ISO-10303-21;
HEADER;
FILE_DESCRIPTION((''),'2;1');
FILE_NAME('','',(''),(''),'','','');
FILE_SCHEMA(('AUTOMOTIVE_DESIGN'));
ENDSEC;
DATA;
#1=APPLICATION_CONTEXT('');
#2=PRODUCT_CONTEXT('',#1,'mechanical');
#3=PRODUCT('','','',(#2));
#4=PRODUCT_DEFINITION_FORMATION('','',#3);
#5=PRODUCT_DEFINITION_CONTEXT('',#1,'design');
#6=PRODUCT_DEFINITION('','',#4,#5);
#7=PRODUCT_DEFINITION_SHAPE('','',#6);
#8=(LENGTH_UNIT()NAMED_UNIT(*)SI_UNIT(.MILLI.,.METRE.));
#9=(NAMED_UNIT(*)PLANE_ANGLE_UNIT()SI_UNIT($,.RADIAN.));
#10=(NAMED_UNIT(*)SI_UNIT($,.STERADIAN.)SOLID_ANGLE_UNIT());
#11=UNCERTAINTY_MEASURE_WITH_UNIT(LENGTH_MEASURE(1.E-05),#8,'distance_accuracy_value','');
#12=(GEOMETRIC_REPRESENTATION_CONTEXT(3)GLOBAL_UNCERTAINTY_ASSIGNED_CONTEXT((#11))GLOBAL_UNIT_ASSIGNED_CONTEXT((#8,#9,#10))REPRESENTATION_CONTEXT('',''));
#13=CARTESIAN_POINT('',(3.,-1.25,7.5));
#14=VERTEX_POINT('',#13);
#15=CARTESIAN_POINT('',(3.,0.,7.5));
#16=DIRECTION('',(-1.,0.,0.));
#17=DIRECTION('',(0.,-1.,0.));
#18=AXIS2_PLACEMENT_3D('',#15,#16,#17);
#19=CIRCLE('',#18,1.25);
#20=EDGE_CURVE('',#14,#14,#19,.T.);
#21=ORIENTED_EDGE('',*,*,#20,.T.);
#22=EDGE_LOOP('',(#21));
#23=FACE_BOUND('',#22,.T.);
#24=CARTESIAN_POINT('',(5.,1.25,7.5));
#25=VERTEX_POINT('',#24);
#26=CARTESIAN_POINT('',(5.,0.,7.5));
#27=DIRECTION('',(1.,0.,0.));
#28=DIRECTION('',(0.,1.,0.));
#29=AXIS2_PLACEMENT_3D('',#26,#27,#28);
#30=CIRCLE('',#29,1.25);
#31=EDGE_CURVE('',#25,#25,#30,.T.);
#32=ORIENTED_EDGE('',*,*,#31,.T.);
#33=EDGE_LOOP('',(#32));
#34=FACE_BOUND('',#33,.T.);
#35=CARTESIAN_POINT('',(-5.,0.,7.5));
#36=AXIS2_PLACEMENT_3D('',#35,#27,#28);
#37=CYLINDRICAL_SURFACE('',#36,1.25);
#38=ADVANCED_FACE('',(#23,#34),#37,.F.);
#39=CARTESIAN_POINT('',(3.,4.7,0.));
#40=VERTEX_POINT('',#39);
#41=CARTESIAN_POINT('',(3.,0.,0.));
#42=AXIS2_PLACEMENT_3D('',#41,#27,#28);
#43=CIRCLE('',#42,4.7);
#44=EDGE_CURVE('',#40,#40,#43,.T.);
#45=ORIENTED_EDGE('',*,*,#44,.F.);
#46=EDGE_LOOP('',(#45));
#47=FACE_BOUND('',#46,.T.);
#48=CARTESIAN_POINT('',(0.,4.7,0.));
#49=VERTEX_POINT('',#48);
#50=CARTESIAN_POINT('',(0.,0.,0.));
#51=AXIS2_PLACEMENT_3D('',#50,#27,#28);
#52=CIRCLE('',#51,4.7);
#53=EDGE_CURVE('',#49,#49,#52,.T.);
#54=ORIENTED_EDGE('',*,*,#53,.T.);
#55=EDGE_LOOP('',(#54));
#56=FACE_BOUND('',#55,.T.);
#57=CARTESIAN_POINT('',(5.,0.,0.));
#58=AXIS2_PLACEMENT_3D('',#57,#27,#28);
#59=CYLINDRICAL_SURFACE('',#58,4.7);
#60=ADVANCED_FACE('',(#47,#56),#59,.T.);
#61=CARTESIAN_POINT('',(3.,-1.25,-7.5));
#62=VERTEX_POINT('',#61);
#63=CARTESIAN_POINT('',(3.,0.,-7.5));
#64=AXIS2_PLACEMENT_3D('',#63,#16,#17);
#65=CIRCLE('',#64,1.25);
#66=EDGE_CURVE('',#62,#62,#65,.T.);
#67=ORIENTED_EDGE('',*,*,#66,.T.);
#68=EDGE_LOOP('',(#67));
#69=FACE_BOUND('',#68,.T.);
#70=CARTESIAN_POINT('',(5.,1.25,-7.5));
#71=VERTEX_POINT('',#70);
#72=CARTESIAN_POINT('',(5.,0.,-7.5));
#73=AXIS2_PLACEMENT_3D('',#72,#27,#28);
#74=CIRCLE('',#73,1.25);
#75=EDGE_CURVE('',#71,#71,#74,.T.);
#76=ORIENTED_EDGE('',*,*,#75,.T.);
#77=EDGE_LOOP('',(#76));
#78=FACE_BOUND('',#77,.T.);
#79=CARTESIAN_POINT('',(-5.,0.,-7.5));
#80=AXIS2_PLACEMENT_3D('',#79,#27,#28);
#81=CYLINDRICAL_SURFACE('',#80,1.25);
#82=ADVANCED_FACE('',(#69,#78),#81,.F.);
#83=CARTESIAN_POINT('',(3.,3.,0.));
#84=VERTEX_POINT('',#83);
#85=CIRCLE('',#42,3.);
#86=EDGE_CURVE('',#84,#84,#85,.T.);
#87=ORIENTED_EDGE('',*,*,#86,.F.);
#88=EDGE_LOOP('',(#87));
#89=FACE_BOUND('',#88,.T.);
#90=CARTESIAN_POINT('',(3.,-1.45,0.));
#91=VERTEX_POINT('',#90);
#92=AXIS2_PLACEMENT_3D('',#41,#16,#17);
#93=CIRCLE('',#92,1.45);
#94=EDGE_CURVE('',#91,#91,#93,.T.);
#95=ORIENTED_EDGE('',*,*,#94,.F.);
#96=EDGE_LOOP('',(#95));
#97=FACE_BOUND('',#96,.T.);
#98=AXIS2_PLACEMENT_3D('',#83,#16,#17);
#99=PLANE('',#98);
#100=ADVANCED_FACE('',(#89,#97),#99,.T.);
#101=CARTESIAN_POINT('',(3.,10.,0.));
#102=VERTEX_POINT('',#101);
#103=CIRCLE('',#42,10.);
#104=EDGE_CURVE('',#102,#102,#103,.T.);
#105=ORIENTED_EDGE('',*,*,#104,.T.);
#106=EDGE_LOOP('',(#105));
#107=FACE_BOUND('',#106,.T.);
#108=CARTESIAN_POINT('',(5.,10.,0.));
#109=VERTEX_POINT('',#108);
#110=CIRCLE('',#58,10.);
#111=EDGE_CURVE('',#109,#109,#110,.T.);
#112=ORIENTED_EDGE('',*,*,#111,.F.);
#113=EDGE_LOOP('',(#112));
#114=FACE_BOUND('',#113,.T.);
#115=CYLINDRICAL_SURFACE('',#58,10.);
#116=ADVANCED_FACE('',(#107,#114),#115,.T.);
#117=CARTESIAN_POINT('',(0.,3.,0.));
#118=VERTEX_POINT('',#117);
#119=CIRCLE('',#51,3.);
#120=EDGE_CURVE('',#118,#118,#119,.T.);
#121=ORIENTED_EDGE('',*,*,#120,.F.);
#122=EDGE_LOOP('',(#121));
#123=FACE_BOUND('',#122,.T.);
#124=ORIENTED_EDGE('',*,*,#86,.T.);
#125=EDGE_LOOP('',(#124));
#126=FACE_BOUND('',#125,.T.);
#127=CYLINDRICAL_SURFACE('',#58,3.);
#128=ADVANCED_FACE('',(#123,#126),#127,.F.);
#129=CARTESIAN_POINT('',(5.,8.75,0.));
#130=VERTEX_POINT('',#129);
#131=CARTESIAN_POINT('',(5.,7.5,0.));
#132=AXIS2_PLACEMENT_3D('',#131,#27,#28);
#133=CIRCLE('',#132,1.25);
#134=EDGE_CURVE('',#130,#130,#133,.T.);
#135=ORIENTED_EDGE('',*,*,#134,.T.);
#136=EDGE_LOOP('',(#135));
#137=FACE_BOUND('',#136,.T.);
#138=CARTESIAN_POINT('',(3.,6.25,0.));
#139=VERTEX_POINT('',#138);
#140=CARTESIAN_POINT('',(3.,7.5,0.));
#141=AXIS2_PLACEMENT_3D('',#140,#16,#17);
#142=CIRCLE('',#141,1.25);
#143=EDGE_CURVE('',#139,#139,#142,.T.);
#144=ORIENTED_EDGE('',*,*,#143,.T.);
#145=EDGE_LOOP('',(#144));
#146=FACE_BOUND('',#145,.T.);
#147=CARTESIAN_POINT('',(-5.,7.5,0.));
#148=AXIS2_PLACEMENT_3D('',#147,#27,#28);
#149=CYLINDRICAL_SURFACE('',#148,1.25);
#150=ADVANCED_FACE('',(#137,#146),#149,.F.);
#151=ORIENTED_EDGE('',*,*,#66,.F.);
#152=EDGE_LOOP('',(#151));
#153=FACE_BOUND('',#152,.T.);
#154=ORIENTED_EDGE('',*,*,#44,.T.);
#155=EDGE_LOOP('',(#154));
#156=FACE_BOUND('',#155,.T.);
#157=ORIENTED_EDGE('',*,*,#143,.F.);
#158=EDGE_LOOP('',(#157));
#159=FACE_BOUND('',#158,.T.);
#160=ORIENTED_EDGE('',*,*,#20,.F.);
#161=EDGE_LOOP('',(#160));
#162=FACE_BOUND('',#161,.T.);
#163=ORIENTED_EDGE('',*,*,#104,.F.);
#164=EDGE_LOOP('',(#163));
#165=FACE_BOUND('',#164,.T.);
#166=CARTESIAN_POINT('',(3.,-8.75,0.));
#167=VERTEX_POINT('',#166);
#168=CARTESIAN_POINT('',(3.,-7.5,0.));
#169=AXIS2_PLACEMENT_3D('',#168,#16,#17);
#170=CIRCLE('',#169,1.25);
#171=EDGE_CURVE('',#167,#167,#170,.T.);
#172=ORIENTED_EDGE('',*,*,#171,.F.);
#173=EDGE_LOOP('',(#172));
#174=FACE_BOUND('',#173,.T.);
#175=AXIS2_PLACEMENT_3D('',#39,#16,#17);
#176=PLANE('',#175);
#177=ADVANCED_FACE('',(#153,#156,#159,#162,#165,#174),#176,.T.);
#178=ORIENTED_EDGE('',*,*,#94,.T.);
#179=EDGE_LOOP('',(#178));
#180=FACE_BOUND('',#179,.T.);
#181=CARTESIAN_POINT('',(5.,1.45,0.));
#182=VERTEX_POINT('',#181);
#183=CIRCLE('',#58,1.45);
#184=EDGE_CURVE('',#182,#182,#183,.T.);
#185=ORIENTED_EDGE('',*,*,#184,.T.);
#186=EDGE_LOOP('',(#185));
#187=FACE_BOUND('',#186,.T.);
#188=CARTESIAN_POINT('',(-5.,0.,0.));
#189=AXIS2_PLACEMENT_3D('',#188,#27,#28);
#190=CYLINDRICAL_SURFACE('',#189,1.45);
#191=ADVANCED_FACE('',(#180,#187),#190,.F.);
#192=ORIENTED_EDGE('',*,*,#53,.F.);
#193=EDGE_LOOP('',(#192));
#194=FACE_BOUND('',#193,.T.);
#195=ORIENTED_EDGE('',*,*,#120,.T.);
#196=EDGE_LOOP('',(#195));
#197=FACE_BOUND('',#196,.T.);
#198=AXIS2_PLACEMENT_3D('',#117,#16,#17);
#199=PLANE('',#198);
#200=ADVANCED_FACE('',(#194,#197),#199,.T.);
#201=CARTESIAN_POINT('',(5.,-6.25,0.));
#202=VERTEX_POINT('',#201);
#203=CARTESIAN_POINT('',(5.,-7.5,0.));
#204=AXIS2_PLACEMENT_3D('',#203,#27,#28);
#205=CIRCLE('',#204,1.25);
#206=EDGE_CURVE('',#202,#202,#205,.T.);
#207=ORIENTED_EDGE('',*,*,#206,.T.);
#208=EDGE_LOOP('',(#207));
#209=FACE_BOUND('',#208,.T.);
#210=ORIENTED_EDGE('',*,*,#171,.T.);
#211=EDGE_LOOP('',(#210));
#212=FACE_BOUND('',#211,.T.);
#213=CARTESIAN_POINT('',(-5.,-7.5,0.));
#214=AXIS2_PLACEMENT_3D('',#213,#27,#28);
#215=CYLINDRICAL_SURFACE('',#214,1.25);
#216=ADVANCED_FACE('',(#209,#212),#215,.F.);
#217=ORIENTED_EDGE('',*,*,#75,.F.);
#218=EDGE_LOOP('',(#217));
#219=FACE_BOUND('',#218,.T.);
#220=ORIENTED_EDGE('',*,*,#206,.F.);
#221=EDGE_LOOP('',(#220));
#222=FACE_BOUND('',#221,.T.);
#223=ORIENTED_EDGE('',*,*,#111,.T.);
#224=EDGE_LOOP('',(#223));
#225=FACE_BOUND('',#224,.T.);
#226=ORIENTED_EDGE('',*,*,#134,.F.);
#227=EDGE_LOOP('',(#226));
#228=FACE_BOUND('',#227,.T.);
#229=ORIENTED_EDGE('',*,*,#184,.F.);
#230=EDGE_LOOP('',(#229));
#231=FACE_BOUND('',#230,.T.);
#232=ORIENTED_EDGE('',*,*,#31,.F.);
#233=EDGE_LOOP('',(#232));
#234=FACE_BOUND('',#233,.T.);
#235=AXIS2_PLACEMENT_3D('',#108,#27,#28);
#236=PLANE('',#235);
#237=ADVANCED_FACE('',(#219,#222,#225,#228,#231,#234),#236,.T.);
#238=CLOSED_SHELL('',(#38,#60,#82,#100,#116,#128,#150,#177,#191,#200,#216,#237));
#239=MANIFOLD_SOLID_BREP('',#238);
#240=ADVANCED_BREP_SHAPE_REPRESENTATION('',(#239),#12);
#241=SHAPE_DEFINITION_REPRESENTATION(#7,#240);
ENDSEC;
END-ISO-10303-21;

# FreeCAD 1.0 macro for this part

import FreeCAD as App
import Part
import Sketcher

V = App.Vector


def add_polygon(sketch, points):
    """Adds a closed chain of lines whose ends are joined by coincident constraints."""
    first, n = sketch.GeometryCount, len(points)
    for a, b in zip(points, points[1:] + points[:1]):
        sketch.addGeometry(Part.LineSegment(App.Vector(*a, 0), App.Vector(*b, 0)), False)
    for i in range(n):
        sketch.addConstraint(Sketcher.Constraint("Coincident", first + i, 2, first + (i + 1) % n, 1))

doc = App.newDocument("Part")
body = doc.addObject("PartDesign::Body", "Body")

sketch1 = body.newObject("Sketcher::SketchObject", "Sketch")
sketch1.AttachmentSupport = (doc.getObject("XY_Plane"), [""])
sketch1.MapMode = "FlatFace"
add_polygon(sketch1, [(0, 4.7), (0, 3), (3, 3), (3, 0), (5, 0), (5, 10), (3, 10), (3, 4.7)])
sketch1.addConstraint(Sketcher.Constraint("Vertical", 0))
sketch1.addConstraint(Sketcher.Constraint("Horizontal", 1))
sketch1.addConstraint(Sketcher.Constraint("Vertical", 2))
sketch1.addConstraint(Sketcher.Constraint("Horizontal", 3))
sketch1.addConstraint(Sketcher.Constraint("Vertical", 4))
sketch1.addConstraint(Sketcher.Constraint("Horizontal", 5))
sketch1.addConstraint(Sketcher.Constraint("Vertical", 6))
sketch1.addConstraint(Sketcher.Constraint("Horizontal", 7))
sketch1.addConstraint(Sketcher.Constraint("PointOnObject", 0, 2, -2))
sketch1.addConstraint(Sketcher.Constraint("PointOnObject", 2, 2, -1))
sketch1.addConstraint(Sketcher.Constraint("Vertical", 2, 2, 5, 2))
sketch1.addConstraint(Sketcher.Constraint("Equal", 7, 2))
sketch1.addConstraint(Sketcher.Constraint("DistanceX", 1, 1, 1, 2, 3.0))
sketch1.addConstraint(Sketcher.Constraint("DistanceX", 3, 1, 3, 2, 2.0))
sketch1.addConstraint(Sketcher.Constraint("DistanceY", 4, 1, 4, 2, 10.0))
sketch1.addConstraint(Sketcher.Constraint("DistanceY", 0, 2, 0, 1, 1.7))
revolution = body.newObject("PartDesign::Revolution", "Revolution")
revolution.Profile = sketch1
revolution.ReferenceAxis = (sketch1, ["H_Axis"])
revolution.Angle = 360

sketch2 = body.newObject("Sketcher::SketchObject", "Sketch001")
sketch2.AttachmentSupport = (doc.getObject("YZ_Plane"), [""])
sketch2.MapMode = "FlatFace"
sketch2.AttachmentOffset = App.Placement(V(0, 0, 5), App.Rotation())
sketch2.addGeometry(Part.Circle(V(0, 0, 0), V(0, 0, 1), 1.45), False)
sketch2.addGeometry(Part.Circle(V(7.5, 0, 0), V(0, 0, 1), 1.25), False)
sketch2.addGeometry(Part.Circle(V(0, -7.5, 0), V(0, 0, 1), 1.25), False)
sketch2.addGeometry(Part.Circle(V(-7.5, 0, 0), V(0, 0, 1), 1.25), False)
sketch2.addGeometry(Part.Circle(V(0, 7.5, 0), V(0, 0, 1), 1.25), False)
sketch2.addConstraint(Sketcher.Constraint("Coincident", 0, 3, -1, 1))
sketch2.addConstraint(Sketcher.Constraint("Equal", 1, 2))
sketch2.addConstraint(Sketcher.Constraint("Equal", 2, 3))
sketch2.addConstraint(Sketcher.Constraint("Equal", 3, 4))
sketch2.addConstraint(Sketcher.Constraint("Symmetric", 1, 3, 3, 3, -1, 1))
sketch2.addConstraint(Sketcher.Constraint("Symmetric", 2, 3, 4, 3, -1, 1))
sketch2.addConstraint(Sketcher.Constraint("PointOnObject", 1, 3, -1))
sketch2.addConstraint(Sketcher.Constraint("PointOnObject", 2, 3, -2))
sketch2.addConstraint(Sketcher.Constraint("Diameter", 0, 2.9))
sketch2.addConstraint(Sketcher.Constraint("Diameter", 1, 2.5))
sketch2.addConstraint(Sketcher.Constraint("DistanceX", 3, 3, 1, 3, 15.0))
sketch2.addConstraint(Sketcher.Constraint("DistanceY", 2, 3, 4, 3, 15.0))
pocket1 = body.newObject("PartDesign::Pocket", "Pocket")
pocket1.Profile = sketch2
pocket1.Length = 10

doc.recompute()
